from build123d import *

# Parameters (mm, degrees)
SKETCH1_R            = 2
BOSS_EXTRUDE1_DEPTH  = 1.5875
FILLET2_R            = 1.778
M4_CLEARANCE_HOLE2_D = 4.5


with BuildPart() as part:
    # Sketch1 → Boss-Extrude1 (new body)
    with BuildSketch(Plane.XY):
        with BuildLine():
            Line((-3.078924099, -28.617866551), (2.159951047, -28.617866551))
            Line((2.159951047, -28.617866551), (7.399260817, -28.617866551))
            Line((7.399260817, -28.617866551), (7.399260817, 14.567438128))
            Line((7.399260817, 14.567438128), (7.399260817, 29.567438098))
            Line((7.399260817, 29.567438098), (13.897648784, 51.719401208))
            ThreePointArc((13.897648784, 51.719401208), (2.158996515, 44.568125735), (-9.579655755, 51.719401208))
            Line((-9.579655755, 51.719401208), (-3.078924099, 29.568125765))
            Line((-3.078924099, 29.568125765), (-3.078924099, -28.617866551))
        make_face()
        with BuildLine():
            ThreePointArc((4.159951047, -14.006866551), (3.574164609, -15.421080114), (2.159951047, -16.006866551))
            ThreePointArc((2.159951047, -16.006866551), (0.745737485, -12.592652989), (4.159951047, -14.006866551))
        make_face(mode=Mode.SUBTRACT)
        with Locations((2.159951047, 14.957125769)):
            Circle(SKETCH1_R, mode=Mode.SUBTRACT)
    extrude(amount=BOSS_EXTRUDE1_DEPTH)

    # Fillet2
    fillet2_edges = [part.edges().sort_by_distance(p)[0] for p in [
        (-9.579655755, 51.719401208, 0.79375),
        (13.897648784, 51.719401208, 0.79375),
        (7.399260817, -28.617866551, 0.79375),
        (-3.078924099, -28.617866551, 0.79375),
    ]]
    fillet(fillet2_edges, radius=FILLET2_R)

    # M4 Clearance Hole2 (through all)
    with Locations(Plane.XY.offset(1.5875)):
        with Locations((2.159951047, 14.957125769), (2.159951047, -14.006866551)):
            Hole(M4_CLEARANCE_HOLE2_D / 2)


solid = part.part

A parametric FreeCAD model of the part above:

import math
import FreeCAD as App
import Part
import Sketcher
from FreeCAD import Vector


def edges_at(feature, points):
    """Names of the edges that pass closest to the given points."""
    edges = feature.Shape.Edges
    near = lambda p: min(range(len(edges)), key=lambda i: edges[i].distToShape(Part.Vertex(*p))[0])
    return sorted({f"Edge{near(p) + 1}" for p in points})

doc = App.newDocument("Part")
body = doc.addObject("PartDesign::Body", "Body")

# Sketch on XY plane
sketch1 = body.newObject("Sketcher::SketchObject", "Sketch")
sketch1.AttachmentSupport = (doc.getObject("XY_Plane"), [""])
sketch1.MapMode = "FlatFace"
sketch1.addGeometry([
    Part.LineSegment(Vector(-3.1, -28.6, 0), Vector(7.4, -28.6, 0)),  # 0
    Part.LineSegment(Vector(7.4, -28.6, 0), Vector(7.4, 29.6, 0)),  # 1
    Part.LineSegment(Vector(7.4, 29.6, 0), Vector(13.9, 51.7, 0)),  # 2
    Part.ArcOfCircle(Part.Circle(Vector(2.2, 57.8, 0), Vector(0, 0, 1), 13.2), math.radians(-153), math.radians(-27)),  # 3
    Part.LineSegment(Vector(-9.6, 51.7, 0), Vector(-3.1, 29.6, 0)),  # 4
    Part.LineSegment(Vector(-3.1, 29.6, 0), Vector(-3.1, -28.6, 0)),  # 5
    Part.ArcOfCircle(Part.Circle(Vector(2.2, -14, 0), Vector(0, 0, 1), 2), math.radians(0), math.radians(270)),  # 6
    Part.ArcOfCircle(Part.Circle(Vector(2.2, -14, 0), Vector(0, 0, 1), 2), math.radians(-90), math.radians(0)),  # 7
    Part.Circle(Vector(2.2, 15, 0), Vector(0, 0, 1), 2),  # 8
], False)
sketch1.addConstraint([
    Sketcher.Constraint("Coincident", 0, 2, 1, 1),
    Sketcher.Constraint("Coincident", 1, 2, 2, 1),
    Sketcher.Constraint("Coincident", 2, 2, 3, 2),
    Sketcher.Constraint("Coincident", 3, 1, 4, 1),
    Sketcher.Constraint("Coincident", 4, 2, 5, 1),
    Sketcher.Constraint("Coincident", 5, 2, 0, 1),
    Sketcher.Constraint("Tangent", 6, 1, 7, 2),
    Sketcher.Constraint("Coincident", 7, 1, 6, 2),
    Sketcher.Constraint("Horizontal", 0),
    Sketcher.Constraint("Vertical", 1),
    Sketcher.Constraint("Vertical", 5),
    Sketcher.Constraint("Equal", 7, 8),
    Sketcher.Constraint("Horizontal", 2, 2, 3, 1),
    Sketcher.Constraint("Horizontal", 7, 3, 6, 1),
    Sketcher.Constraint("Vertical", 7, 3, 8, 3),
    Sketcher.Constraint("Vertical", 8, 3, 7, 1),
    Sketcher.Constraint("Equal", 2, 4),
    Sketcher.Constraint("Diameter", 8, 4.0),
    Sketcher.Constraint("Radius", 3, 13.21),
    Sketcher.Constraint("DistanceY", 4, 2, 3, 3, 28.21),
    Sketcher.Constraint("DistanceY", 8, 3, 3, 3, 42.821),
    Sketcher.Constraint("DistanceY", 0, 2, 6, 3, 14.611),
    Sketcher.Constraint("DistanceY", -1, 1, 2, 2, 51.719401),
    Sketcher.Constraint("Distance", 2, 23.085461),
    Sketcher.Constraint("DistanceX", 0, 1, 0, 2, 10.478185),
    Sketcher.Constraint("DistanceY", 1, 1, 1, 2, 58.185305),
    Sketcher.Constraint("DistanceY", 5, 2, 5, 1, 58.185992),
    Sketcher.Constraint("DistanceX", -1, 1, 6, 3, 2.159951),
    Sketcher.Constraint("DistanceX", -1, 1, 0, 2, 7.399261),
])
pad1 = body.newObject("PartDesign::Pad", "Pad")
pad1.Profile = sketch1
pad1.Length = 1.5875
doc.recompute()

fillet = body.newObject("PartDesign::Fillet", "Fillet")
fillet.Base = (pad1, edges_at(pad1, [
    (-9.58, 51.719, 0.794),
    (13.898, 51.719, 0.794),
    (7.399, -28.618, 0.794),
    (-3.079, -28.618, 0.794),
]))
fillet.Radius = 1.778

# Sketch on XY plane
sketch2 = body.newObject("Sketcher::SketchObject", "Sketch001")
sketch2.AttachmentSupport = (doc.getObject("XY_Plane"), [""])
sketch2.MapMode = "FlatFace"
sketch2.AttachmentOffset = App.Placement(Vector(0, 0, 1.5875), App.Rotation())
sketch2.addGeometry([
    Part.Circle(Vector(2.2, 15, 0), Vector(0, 0, 1), 2.2),
    Part.Circle(Vector(2.2, -14, 0), Vector(0, 0, 1), 2.2),
], False)
sketch2.addConstraint([
    Sketcher.Constraint("Equal", 0, 1),
    Sketcher.Constraint("Vertical", 0, 3, 1, 3),
    Sketcher.Constraint("Diameter", 0, 4.5),
    Sketcher.Constraint("DistanceX", -1, 1, 0, 3, 2.159951),
    Sketcher.Constraint("DistanceY", -1, 1, 0, 3, 14.957126),
    Sketcher.Constraint("DistanceY", 1, 3, -1, 1, 14.006867),
])
doc.recompute()
hole = body.newObject("PartDesign::Hole", "Hole")
hole.Profile = sketch2
hole.ThreadType = "None"
hole.Diameter = 4.5
hole.DepthType = "ThroughAll"

doc.recompute()
